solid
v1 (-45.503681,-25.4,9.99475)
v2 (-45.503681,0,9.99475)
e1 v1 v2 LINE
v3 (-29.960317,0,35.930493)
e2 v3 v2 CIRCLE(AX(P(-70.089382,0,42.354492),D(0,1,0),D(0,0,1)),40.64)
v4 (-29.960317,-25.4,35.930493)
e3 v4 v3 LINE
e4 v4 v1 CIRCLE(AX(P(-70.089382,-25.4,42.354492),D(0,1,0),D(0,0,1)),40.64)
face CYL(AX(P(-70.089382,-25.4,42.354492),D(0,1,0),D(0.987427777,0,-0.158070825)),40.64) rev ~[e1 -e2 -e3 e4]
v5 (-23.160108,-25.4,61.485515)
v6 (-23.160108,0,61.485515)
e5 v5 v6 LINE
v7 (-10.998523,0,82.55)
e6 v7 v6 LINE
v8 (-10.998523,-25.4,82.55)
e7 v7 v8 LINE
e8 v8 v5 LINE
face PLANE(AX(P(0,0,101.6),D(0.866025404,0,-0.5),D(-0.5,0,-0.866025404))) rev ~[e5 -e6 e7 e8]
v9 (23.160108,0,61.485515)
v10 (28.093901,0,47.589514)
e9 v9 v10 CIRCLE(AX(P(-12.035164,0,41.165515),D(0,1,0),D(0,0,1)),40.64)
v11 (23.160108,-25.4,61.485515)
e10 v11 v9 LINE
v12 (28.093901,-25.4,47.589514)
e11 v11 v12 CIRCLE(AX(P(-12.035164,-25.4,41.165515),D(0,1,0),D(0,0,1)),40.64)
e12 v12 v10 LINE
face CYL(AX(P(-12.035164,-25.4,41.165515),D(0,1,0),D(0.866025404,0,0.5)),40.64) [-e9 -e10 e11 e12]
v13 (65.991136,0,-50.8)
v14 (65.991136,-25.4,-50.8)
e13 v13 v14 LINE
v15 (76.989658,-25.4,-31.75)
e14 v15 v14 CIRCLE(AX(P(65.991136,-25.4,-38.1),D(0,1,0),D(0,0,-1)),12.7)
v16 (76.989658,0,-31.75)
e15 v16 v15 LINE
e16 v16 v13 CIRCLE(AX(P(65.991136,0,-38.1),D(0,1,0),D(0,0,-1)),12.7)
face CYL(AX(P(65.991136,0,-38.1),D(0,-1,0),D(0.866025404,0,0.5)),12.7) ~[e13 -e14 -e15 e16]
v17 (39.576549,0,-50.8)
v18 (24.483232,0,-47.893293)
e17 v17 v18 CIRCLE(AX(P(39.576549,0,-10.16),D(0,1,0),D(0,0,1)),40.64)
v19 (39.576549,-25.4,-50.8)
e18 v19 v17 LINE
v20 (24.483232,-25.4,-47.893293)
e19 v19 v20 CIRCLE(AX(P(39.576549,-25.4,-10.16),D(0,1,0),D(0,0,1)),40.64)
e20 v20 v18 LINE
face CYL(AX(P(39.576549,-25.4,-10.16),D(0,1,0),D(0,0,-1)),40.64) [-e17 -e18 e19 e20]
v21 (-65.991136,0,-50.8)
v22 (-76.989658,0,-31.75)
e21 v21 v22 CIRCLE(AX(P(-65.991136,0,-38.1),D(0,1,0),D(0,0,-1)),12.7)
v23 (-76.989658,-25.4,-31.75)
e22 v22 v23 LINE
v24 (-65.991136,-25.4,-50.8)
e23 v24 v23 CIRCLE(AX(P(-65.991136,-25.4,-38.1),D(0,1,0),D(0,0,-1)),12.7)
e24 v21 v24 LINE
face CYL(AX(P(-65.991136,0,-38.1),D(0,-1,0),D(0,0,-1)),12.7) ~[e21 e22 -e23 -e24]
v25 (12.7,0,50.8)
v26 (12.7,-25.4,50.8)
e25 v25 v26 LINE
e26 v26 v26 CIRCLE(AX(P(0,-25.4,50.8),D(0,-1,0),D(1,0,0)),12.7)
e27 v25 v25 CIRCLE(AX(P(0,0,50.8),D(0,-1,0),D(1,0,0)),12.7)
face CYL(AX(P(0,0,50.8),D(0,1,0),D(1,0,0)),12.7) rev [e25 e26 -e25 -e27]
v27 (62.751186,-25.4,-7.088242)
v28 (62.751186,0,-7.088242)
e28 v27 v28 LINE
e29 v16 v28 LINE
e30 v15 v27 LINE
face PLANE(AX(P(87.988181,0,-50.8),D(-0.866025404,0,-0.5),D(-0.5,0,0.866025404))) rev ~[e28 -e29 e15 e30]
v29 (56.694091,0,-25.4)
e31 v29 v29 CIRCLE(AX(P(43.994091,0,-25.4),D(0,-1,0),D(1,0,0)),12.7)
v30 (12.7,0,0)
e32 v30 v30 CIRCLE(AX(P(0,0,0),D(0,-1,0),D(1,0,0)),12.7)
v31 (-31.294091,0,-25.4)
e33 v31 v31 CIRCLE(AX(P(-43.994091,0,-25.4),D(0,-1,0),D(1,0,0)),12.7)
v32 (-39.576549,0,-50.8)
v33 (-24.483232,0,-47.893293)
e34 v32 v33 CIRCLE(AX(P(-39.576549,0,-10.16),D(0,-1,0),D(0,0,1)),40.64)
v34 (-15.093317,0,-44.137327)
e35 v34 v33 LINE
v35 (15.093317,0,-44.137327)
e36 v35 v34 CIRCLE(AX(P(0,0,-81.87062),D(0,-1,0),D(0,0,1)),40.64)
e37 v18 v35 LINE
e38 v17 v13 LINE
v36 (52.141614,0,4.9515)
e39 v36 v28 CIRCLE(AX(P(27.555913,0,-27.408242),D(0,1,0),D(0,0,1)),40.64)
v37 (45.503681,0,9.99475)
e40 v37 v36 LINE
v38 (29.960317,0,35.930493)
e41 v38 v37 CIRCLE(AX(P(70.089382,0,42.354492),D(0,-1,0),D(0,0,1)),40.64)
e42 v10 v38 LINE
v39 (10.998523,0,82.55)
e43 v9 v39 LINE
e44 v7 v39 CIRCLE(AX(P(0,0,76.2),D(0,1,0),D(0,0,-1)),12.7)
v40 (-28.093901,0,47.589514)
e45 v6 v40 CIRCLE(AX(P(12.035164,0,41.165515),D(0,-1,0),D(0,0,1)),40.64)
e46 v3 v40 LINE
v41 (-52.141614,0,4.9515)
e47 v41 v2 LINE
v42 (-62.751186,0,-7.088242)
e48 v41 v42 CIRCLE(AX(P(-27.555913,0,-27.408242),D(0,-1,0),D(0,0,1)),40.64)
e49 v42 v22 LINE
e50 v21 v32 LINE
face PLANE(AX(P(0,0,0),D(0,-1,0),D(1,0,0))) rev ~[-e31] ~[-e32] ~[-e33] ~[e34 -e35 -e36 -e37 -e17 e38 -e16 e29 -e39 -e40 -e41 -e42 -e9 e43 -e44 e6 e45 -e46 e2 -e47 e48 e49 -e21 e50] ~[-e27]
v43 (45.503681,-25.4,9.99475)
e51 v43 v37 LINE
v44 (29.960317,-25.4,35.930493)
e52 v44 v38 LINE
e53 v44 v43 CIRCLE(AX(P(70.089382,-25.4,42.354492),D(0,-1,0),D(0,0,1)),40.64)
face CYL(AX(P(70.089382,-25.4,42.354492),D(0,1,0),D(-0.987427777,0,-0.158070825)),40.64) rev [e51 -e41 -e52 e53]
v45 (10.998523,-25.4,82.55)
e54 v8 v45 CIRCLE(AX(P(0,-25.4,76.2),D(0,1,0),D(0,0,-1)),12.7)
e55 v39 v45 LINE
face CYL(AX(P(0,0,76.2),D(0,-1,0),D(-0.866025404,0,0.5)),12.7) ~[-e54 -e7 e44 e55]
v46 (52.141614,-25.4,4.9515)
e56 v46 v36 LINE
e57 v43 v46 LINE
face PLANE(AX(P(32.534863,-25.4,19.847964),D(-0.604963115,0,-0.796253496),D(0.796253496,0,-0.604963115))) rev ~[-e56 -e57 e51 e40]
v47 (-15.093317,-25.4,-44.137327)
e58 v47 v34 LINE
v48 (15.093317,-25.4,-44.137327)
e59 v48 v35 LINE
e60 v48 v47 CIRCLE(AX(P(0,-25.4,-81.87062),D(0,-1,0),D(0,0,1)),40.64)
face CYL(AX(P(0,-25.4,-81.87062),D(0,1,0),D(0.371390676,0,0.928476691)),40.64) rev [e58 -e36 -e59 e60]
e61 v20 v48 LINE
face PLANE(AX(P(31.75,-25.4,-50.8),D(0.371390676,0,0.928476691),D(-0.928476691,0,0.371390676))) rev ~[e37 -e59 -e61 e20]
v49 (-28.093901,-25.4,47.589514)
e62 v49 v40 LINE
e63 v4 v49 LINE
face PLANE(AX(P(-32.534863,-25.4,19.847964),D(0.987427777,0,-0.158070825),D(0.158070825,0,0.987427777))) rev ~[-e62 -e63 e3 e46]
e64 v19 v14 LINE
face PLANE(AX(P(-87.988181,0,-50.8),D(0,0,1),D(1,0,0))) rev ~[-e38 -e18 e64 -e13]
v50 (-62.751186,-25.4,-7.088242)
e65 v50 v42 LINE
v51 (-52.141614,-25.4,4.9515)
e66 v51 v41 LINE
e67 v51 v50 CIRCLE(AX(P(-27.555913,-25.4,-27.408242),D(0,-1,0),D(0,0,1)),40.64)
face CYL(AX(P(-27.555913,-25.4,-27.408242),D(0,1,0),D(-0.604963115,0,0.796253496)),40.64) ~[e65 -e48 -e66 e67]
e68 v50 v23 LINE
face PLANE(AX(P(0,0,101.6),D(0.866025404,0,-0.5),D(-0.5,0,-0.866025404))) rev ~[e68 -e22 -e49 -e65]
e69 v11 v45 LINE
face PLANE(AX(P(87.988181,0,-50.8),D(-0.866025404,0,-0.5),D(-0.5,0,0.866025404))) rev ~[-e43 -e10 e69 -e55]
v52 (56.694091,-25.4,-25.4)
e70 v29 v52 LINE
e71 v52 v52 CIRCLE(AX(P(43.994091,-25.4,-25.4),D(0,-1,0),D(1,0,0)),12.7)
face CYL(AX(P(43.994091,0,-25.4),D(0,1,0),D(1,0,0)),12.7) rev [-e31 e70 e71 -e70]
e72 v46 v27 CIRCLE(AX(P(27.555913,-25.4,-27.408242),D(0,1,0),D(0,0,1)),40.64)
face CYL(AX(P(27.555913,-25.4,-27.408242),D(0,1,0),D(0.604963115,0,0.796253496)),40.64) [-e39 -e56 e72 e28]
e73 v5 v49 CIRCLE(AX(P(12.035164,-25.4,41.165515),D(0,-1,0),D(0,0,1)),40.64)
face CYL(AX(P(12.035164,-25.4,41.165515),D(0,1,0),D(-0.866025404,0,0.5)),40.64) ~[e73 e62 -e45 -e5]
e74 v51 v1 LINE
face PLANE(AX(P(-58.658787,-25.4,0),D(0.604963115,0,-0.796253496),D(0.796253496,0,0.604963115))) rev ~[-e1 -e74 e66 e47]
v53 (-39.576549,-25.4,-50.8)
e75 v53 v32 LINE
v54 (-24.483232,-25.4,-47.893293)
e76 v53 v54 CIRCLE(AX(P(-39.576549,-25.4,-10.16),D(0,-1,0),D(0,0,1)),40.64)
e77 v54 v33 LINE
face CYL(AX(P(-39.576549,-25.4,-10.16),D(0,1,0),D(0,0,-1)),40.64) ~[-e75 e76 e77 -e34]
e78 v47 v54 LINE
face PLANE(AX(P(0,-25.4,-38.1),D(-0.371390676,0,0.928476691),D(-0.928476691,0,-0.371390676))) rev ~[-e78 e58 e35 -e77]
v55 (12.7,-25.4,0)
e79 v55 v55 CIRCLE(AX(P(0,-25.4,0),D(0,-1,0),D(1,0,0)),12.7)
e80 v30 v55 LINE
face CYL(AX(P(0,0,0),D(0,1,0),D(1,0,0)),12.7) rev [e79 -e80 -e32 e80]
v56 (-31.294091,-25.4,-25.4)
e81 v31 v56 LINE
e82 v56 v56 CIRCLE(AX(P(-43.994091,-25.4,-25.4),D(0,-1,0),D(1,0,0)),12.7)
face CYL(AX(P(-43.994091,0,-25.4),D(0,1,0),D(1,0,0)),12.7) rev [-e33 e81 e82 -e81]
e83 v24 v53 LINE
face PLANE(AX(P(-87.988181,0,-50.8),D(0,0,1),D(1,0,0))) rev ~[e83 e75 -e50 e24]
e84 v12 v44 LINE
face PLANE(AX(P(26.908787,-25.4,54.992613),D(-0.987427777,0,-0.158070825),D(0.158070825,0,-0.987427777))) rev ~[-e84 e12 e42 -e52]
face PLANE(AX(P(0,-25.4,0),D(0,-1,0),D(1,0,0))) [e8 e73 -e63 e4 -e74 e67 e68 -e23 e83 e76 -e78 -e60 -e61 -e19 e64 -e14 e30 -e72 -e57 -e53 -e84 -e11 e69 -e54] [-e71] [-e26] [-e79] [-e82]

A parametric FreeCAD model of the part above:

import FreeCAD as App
import Part
import Sketcher

V = App.Vector
Q = App.Units.Quantity


def edges_at(feature, points):
    """Names of the edges that pass closest to the given points."""
    edges = feature.Shape.Edges
    near = lambda p: min(range(len(edges)), key=lambda i: edges[i].distToShape(Part.Vertex(*p))[0])
    return sorted({f"Edge{near(p) + 1}" for p in points})

doc = App.newDocument("Part")
body = doc.addObject("PartDesign::Body", "Body")

sketch1 = body.newObject("Sketcher::SketchObject", "Sketch")
sketch1.AttachmentSupport = (doc.getObject("XZ_Plane"), [""])
sketch1.MapMode = "FlatFace"
sketch1.addGeometry(Part.LineSegment(V(0, 102, 0), V(-88, -51, 0)), False)
sketch1.addGeometry(Part.LineSegment(V(-88, -51, 0), V(88, -51, 0)), False)
sketch1.addGeometry(Part.LineSegment(V(88, -51, 0), V(0, 102, 0)), False)
sketch1.addGeometry(Part.Circle(V(-44, -25, 0), V(0, 0, 1), 13), False)
sketch1.addGeometry(Part.Circle(V(0, 0, 0), V(0, 0, 1), 13), False)
sketch1.addGeometry(Part.Circle(V(44, -25, 0), V(0, 0, 1), 13), False)
sketch1.addGeometry(Part.Circle(V(0, 51, 0), V(0, 0, 1), 13), False)
sketch1.addConstraint(Sketcher.Constraint("Coincident", 0, 2, 1, 1))
sketch1.addConstraint(Sketcher.Constraint("Coincident", 1, 2, 2, 1))
sketch1.addConstraint(Sketcher.Constraint("Coincident", 2, 2, 0, 1))
sketch1.addConstraint(Sketcher.Constraint("Horizontal", 1))
sketch1.addConstraint(Sketcher.Constraint("Coincident", 4, 3, -1, 1))
sketch1.addConstraint(Sketcher.Constraint("Equal", 3, 4))
sketch1.addConstraint(Sketcher.Constraint("Equal", 4, 5))
sketch1.addConstraint(Sketcher.Constraint("Equal", 5, 6))
sketch1.addConstraint(Sketcher.Constraint("Symmetric", 3, 3, 5, 3, -2))
sketch1.addConstraint(Sketcher.Constraint("PointOnObject", 6, 3, -2))
sketch1.addConstraint(Sketcher.Constraint("PointOnObject", 2, 2, -2))
sketch1.addConstraint(Sketcher.Constraint("Equal", 0, 2))
sketch1.addConstraint(Sketcher.Constraint("Diameter", 3, Q("1 in")))
sketch1.addConstraint(Sketcher.Constraint("DistanceY", 3, 3, -1, 1, Q("1 in")))
sketch1.addConstraint(Sketcher.Constraint("DistanceY", -1, 1, 6, 3, Q("2 in")))
sketch1.addConstraint(Sketcher.Constraint("DistanceY", 0, 2, -1, 1, Q("2 in")))
sketch1.addConstraint(Sketcher.Constraint("DistanceY", -1, 1, 2, 2, Q("4 in")))
sketch1.addConstraint(Sketcher.Constraint("Angle", 0, Q("-120 deg")))
sketch1.addConstraint(Sketcher.Constraint("DistanceX", 3, 3, -1, 1, 43.994091))
pad1 = body.newObject("PartDesign::Pad", "Pad")
pad1.Profile = sketch1
pad1.Length = Q("1 in")

sketch2 = body.newObject("Sketcher::SketchObject", "Sketch001")
sketch2.AttachmentSupport = (doc.getObject("XZ_Plane"), [""])
sketch2.MapMode = "FlatFace"
sketch2.AttachmentOffset = App.Placement(V(0, 0, 1 * 25.4), App.Rotation())
sketch2.addGeometry(Part.LineSegment(V(-33, 20, 0), V(-27, 55, 0)), False)
sketch2.addGeometry(Part.LineSegment(V(-27, 55, 0), V(-59, 0, 0)), False)
sketch2.addGeometry(Part.LineSegment(V(-59, 0, 0), V(-33, 20, 0)), False)
sketch2.addGeometry(Part.LineSegment(V(59, 0, 0), V(27, 55, 0)), False)
sketch2.addGeometry(Part.LineSegment(V(27, 55, 0), V(33, 20, 0)), False)
sketch2.addGeometry(Part.LineSegment(V(33, 20, 0), V(59, 0, 0)), False)
sketch2.addGeometry(Part.LineSegment(V(0, -38, 0), V(-32, -51, 0)), False)
sketch2.addGeometry(Part.LineSegment(V(-32, -51, 0), V(32, -51, 0)), False)
sketch2.addGeometry(Part.LineSegment(V(32, -51, 0), V(0, -38, 0)), False)
sketch2.addConstraint(Sketcher.Constraint("Coincident", 0, 2, 1, 1))
sketch2.addConstraint(Sketcher.Constraint("Coincident", 1, 2, 2, 1))
sketch2.addConstraint(Sketcher.Constraint("Coincident", 2, 2, 0, 1))
sketch2.addConstraint(Sketcher.Constraint("Coincident", 3, 2, 4, 1))
sketch2.addConstraint(Sketcher.Constraint("Coincident", 4, 2, 5, 1))
sketch2.addConstraint(Sketcher.Constraint("Coincident", 5, 2, 3, 1))
sketch2.addConstraint(Sketcher.Constraint("Coincident", 6, 2, 7, 1))
sketch2.addConstraint(Sketcher.Constraint("Coincident", 7, 2, 8, 1))
sketch2.addConstraint(Sketcher.Constraint("Coincident", 8, 2, 6, 1))
sketch2.addConstraint(Sketcher.Constraint("Horizontal", 7))
sketch2.addConstraint(Sketcher.Constraint("Symmetric", 1, 2, 5, 2, -1, 1))
sketch2.addConstraint(Sketcher.Constraint("Symmetric", 0, 2, 3, 2, -2))
sketch2.addConstraint(Sketcher.Constraint("Symmetric", 2, 2, 4, 2, -2))
sketch2.addConstraint(Sketcher.Constraint("PointOnObject", 1, 2, -1))
sketch2.addConstraint(Sketcher.Constraint("PointOnObject", 8, 2, -2))
sketch2.addConstraint(Sketcher.Constraint("Equal", 6, 8))
sketch2.addConstraint(Sketcher.Constraint("DistanceX", 7, 1, 7, 2, Q("2.5 in")))
sketch2.addConstraint(Sketcher.Constraint("DistanceY", 6, 2, -1, 1, Q("2 in")))
sketch2.addConstraint(Sketcher.Constraint("Angle", 1, Q("-120 deg")))
sketch2.addConstraint(Sketcher.Constraint("Distance", 1, Q("2.5 in")))
sketch2.addConstraint(Sketcher.Constraint("DistanceY", 8, 2, -1, 1, Q("1.5 in")))
sketch2.addConstraint(Sketcher.Constraint("DistanceX", 2, 2, -1, 1, Q("1.2809001 in")))
sketch2.addConstraint(Sketcher.Constraint("Distance", 0, 35.592122))
sketch2.addConstraint(Sketcher.Constraint("Distance", 2, 32.808552))
pocket1 = body.newObject("PartDesign::Pocket", "Pocket")
pocket1.Profile = sketch2
pocket1.Length = Q("1 in")
doc.recompute()

fillet = body.newObject("PartDesign::Fillet", "Fillet")
fillet.Base = (pocket1, edges_at(pocket1, [(0, -12.7, 101.6), (-87.988, -12.7, -50.8), (87.988, -12.7, -50.8)]))
fillet.Radius = Q("0.5 in")
doc.recompute()

fillet2 = body.newObject("PartDesign::Fillet", "Fillet001")
fillet2.Base = (fillet, edges_at(fillet, [
    (-26.909, -12.7, 54.993),
    (-32.535, -12.7, 19.848),
    (-58.659, -12.7, 0),
    (26.909, -12.7, 54.993),
    (32.535, -12.7, 19.848),
    (58.659, -12.7, 0),
    (31.75, -12.7, -50.8),
    (0, -12.7, -38.1),
    (-31.75, -12.7, -50.8),
]))
fillet2.Radius = Q("1.6 in")

doc.recompute()
